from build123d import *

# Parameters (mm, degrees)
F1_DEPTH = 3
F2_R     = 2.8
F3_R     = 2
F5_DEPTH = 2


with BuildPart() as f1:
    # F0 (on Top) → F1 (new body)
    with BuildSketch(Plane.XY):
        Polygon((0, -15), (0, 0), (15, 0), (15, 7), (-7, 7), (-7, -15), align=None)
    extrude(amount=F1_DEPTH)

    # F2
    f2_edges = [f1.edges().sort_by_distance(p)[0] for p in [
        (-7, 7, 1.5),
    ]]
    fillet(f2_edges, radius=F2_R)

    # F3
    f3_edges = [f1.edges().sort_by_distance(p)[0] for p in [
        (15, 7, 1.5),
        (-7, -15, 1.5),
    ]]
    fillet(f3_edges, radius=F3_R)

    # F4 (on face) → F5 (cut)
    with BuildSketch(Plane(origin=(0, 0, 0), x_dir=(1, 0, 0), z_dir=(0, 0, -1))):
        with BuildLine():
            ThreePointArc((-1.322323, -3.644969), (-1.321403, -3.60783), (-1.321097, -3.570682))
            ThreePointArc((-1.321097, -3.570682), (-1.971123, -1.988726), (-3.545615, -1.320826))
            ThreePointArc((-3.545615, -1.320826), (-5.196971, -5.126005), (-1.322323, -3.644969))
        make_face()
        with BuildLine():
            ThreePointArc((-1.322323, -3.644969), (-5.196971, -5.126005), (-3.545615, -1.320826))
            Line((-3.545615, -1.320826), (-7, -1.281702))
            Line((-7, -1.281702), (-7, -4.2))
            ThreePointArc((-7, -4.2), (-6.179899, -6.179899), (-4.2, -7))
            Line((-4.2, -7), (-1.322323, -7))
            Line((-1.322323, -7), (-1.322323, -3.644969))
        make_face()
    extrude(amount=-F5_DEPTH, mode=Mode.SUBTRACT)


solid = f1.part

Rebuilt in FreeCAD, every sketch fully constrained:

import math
import FreeCAD as App
import Part
import Sketcher

V = App.Vector
Q = App.Units.Quantity


def edges_at(feature, points):
    """Names of the edges that pass closest to the given points."""
    edges = feature.Shape.Edges
    near = lambda p: min(range(len(edges)), key=lambda i: edges[i].distToShape(Part.Vertex(*p))[0])
    return sorted({f"Edge{near(p) + 1}" for p in points})

doc = App.newDocument("Part")
body = doc.addObject("PartDesign::Body", "Body")

# Sketch on XY plane
sketch1 = doc.addObject("Sketcher::SketchObject", "Sketch")
body.addObject(sketch1)
sketch1.AttachmentSupport = (doc.XY_Plane, [""])
sketch1.MapMode = "FlatFace"
sketch1.addGeometry([
    Part.LineSegment(V(0, -15, 0), V(0, 0, 0)),  # 0
    Part.LineSegment(V(0, 0, 0), V(15, 0, 0)),  # 1
    Part.LineSegment(V(15, 0, 0), V(15, 7, 0)),  # 2
    Part.LineSegment(V(15, 7, 0), V(-7, 7, 0)),  # 3
    Part.LineSegment(V(-7, 7, 0), V(-7, -15, 0)),  # 4
    Part.LineSegment(V(-7, -15, 0), V(0, -15, 0)),  # 5
], False)
sketch1.addConstraint([
    Sketcher.Constraint("Coincident", 0, 2, 1, 1),
    Sketcher.Constraint("Coincident", 1, 2, 2, 1),
    Sketcher.Constraint("Coincident", 2, 2, 3, 1),
    Sketcher.Constraint("Coincident", 3, 2, 4, 1),
    Sketcher.Constraint("Coincident", 4, 2, 5, 1),
    Sketcher.Constraint("Coincident", 5, 2, 0, 1),
    Sketcher.Constraint("Vertical", 0),
    Sketcher.Constraint("Horizontal", 1),
    Sketcher.Constraint("Vertical", 2),
    Sketcher.Constraint("Horizontal", 3),
    Sketcher.Constraint("Vertical", 4),
    Sketcher.Constraint("Horizontal", 5),
    Sketcher.Constraint("Coincident", 0, 2, -1, 1),
    Sketcher.Constraint("Equal", 1, 0),
    Sketcher.Constraint("Equal", 5, 2),
    Sketcher.Constraint("DistanceX", 1, 1, 1, 2, Q("15 mm")),
    Sketcher.Constraint("DistanceX", 3, 2, 3, 1, Q("22 mm")),
])
pad1 = doc.addObject("PartDesign::Pad", "Pad")
body.addObject(pad1)
pad1.Profile = sketch1
pad1.Length = 3
doc.recompute()

fillet = doc.addObject("PartDesign::Fillet", "Fillet")
body.addObject(fillet)
fillet.Base = (pad1, edges_at(pad1, [(-7, 7, 1.5)]))
fillet.Radius = 2.8
doc.recompute()

fillet2 = doc.addObject("PartDesign::Fillet", "Fillet001")
body.addObject(fillet2)
fillet2.Base = (fillet, edges_at(fillet, [(15, 7, 1.5), (-7, -15, 1.5)]))
fillet2.Radius = 2

# Sketch on XY plane
sketch2 = doc.addObject("Sketcher::SketchObject", "Sketch001")
body.addObject(sketch2)
sketch2.AttachmentSupport = (doc.XY_Plane, [""])
sketch2.MapMode = "FlatFace"
sketch2.addGeometry([
    Part.ArcOfCircle(Part.Circle(V(-3.568595, 3.570744, 0), V(0, 0, 1), 2.247498), math.radians(-0.001578), math.radians(1.892575)),  # 0
    Part.ArcOfCircle(Part.Circle(V(-3.571097, 3.570681, 0), V(0, 0, 1), 2.25), math.radians(-89.351101), math.radians(0.000016)),  # 1
    Part.LineSegment(V(-3.545615, 1.320826, 0), V(-7, 1.281702, 0)),  # 2
    Part.LineSegment(V(-7, 1.281702, 0), V(-7, 4.2, 0)),  # 3
    Part.ArcOfCircle(Part.Circle(V(-4.2, 4.2, 0), V(0, 0, 1), 2.8), math.radians(89.999999), math.radians(180.000001)),  # 4
    Part.LineSegment(V(-4.2, 7, 0), V(-1.322323, 7, 0)),  # 5
    Part.LineSegment(V(-1.322323, 7, 0), V(-1.322323, 3.644969, 0)),  # 6
], False)
sketch2.addConstraint([
    Sketcher.Constraint("Coincident", 0, 1, 1, 2),
    Sketcher.Constraint("Tangent", 1, 1, 2, 1),
    Sketcher.Constraint("Coincident", 2, 2, 3, 1),
    Sketcher.Constraint("Tangent", 3, 2, 4, 2),
    Sketcher.Constraint("Tangent", 4, 1, 5, 1),
    Sketcher.Constraint("Coincident", 5, 2, 6, 1),
    Sketcher.Constraint("Coincident", 6, 2, 0, 2),
    Sketcher.Constraint("Vertical", 3),
    Sketcher.Constraint("Horizontal", 5),
    Sketcher.Constraint("Vertical", 6),
    Sketcher.Constraint("Horizontal", 1, 3, 0, 1),
    Sketcher.Constraint("Radius", 4, Q("2.8 mm")),
    Sketcher.Constraint("Radius", 1, Q("2.25 mm")),
    Sketcher.Constraint("DistanceX", 2, 2, -1, 1, Q("7 mm")),
    Sketcher.Constraint("DistanceY", -1, 1, 4, 1, Q("7 mm")),
    Sketcher.Constraint("DistanceY", 3, 1, 3, 2, Q("2.918298 mm")),
    Sketcher.Constraint("Radius", 0, Q("2.247498 mm")),
    Sketcher.Constraint("DistanceY", 6, 2, 6, 1, Q("3.355031 mm")),
    Sketcher.Constraint("DistanceX", 5, 1, 5, 2, Q("2.877677 mm")),
    Sketcher.Constraint("DistanceY", -1, 1, 1, 3, Q("3.570681 mm")),
    Sketcher.Constraint("DistanceY", 2, 2, 0, 3, Q("2.289042 mm")),
])
pocket1 = doc.addObject("PartDesign::Pocket", "Pocket")
body.addObject(pocket1)
pocket1.Profile = sketch2
pocket1.Length = 2
pocket1.Reversed = True

doc.recompute()
